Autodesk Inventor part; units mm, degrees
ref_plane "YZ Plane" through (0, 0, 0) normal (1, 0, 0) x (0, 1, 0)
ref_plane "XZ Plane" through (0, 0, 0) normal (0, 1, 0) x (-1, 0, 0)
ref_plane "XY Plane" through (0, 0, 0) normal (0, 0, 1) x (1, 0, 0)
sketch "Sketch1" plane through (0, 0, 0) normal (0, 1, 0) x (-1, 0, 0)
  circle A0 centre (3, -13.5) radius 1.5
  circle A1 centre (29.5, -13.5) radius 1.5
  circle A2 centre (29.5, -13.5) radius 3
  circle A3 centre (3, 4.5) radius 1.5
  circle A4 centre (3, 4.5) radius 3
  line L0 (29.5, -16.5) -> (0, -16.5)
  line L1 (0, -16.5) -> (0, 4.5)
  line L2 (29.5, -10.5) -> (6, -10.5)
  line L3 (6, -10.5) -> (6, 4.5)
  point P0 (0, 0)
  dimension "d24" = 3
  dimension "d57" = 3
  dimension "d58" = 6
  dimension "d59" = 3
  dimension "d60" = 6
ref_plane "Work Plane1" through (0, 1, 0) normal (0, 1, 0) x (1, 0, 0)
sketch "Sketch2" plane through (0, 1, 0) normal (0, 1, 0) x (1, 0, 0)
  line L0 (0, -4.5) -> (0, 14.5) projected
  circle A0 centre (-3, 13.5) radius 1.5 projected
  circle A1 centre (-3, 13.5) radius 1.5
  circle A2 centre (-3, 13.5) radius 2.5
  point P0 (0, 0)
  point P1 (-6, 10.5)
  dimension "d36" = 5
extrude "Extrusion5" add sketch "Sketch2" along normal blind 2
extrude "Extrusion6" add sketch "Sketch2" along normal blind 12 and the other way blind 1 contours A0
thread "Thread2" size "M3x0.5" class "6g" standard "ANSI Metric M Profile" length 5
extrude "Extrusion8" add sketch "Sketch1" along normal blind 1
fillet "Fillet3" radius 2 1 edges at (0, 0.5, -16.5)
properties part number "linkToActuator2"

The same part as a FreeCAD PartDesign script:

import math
import FreeCAD as App
import Part
import Sketcher
from FreeCAD import Vector
Q = App.Units.Quantity


def edges_at(feature, points):
    """Names of the edges that pass closest to the given points."""
    edges = feature.Shape.Edges
    near = lambda p: min(range(len(edges)), key=lambda i: edges[i].distToShape(Part.Vertex(*p))[0])
    return sorted({f"Edge{near(p) + 1}" for p in points})

doc = App.newDocument("Part")
body = doc.addObject("PartDesign::Body", "Body")

sketch1 = body.newObject("Sketcher::SketchObject", "Sketch")
sketch1.AttachmentSupport = (doc.getObject("XZ_Plane"), [""])
sketch1.MapMode = "FlatFace"
sketch1.AttachmentOffset = App.Placement(Vector(0, 0, -1), App.Rotation())
sketch1.addGeometry([
    Part.Circle(Vector(-3, -13.5, 0), Vector(0, 0, 1), 2.5),
    Part.Circle(Vector(-3, -13.5, 0), Vector(0, 0, 1), 1.5),
], False)
sketch1.addConstraint([
    Sketcher.Constraint("Coincident", 1, 3, 0, 3),
    Sketcher.Constraint("Diameter", 0, Q("5 mm")),
    Sketcher.Constraint("Diameter", 1, Q("3 mm")),
    Sketcher.Constraint("DistanceX", 0, 3, -1, 1, Q("3 mm")),
    Sketcher.Constraint("DistanceY", 0, 3, -1, 1, Q("13.5 mm")),
])
pad1 = body.newObject("PartDesign::Pad", "Pad")
pad1.Profile = sketch1
pad1.Length = 2
pad1.Reversed = True

sketch2 = body.newObject("Sketcher::SketchObject", "Sketch001")
sketch2.AttachmentSupport = (doc.getObject("XZ_Plane"), [""])
sketch2.MapMode = "FlatFace"
sketch2.AttachmentOffset = App.Placement(Vector(0, 0, -1), App.Rotation())
sketch2.addGeometry(Part.Circle(Vector(-3, -13.5, 0), Vector(0, 0, 1), 1.5), False)
sketch2.addConstraint([
    Sketcher.Constraint("Diameter", 0, Q("3 mm")),
    Sketcher.Constraint("DistanceX", 0, 3, -1, 1, Q("3 mm")),
    Sketcher.Constraint("DistanceY", 0, 3, -1, 1, Q("13.5 mm")),
])
pad2 = body.newObject("PartDesign::Pad", "Pad001")
pad2.Profile = sketch2
pad2.Type = "TwoLengths"
pad2.Length = 12
pad2.Length2 = 1
pad2.Reversed = True

sketch3 = body.newObject("Sketcher::SketchObject", "Sketch002")
sketch3.AttachmentSupport = (doc.getObject("XZ_Plane"), [""])
sketch3.MapMode = "FlatFace"
sketch3.addGeometry([
    Part.ArcOfCircle(Part.Circle(Vector(-29.5, -13.5, 0), Vector(0, 0, 1), 3), math.radians(90), math.radians(270)),
    Part.LineSegment(Vector(-29.5, -10.5, 0), Vector(-6, -10.5, 0)),
    Part.LineSegment(Vector(-6, -10.5, 0), Vector(-6, 4.5, 0)),
    Part.ArcOfCircle(Part.Circle(Vector(-3, 4.5, 0), Vector(0, 0, 1), 3), math.radians(0), math.radians(180)),
    Part.LineSegment(Vector(0, 4.5, 0), Vector(0, -16.5, 0)),
    Part.LineSegment(Vector(0, -16.5, 0), Vector(-29.5, -16.5, 0)),
    Part.Circle(Vector(-29.5, -13.5, 0), Vector(0, 0, 1), 1.5),
    Part.Circle(Vector(-3, -13.5, 0), Vector(0, 0, 1), 1.5),
    Part.Circle(Vector(-3, 4.5, 0), Vector(0, 0, 1), 1.5),
], False)
sketch3.addConstraint([
    Sketcher.Constraint("Tangent", 0, 1, 1, 1),
    Sketcher.Constraint("Coincident", 1, 2, 2, 1),
    Sketcher.Constraint("Tangent", 2, 2, 3, 2),
    Sketcher.Constraint("Tangent", 3, 1, 4, 1),
    Sketcher.Constraint("Coincident", 4, 2, 5, 1),
    Sketcher.Constraint("Tangent", 5, 2, 0, 2),
    Sketcher.Constraint("Horizontal", 1),
    Sketcher.Constraint("Vertical", 2),
    Sketcher.Constraint("Vertical", 4),
    Sketcher.Constraint("Horizontal", 5),
    Sketcher.Constraint("Coincident", 6, 3, 0, 3),
    Sketcher.Constraint("Coincident", 8, 3, 3, 3),
    Sketcher.Constraint("Equal", 0, 3),
    Sketcher.Constraint("Equal", 6, 7),
    Sketcher.Constraint("Equal", 7, 8),
    Sketcher.Constraint("PointOnObject", 3, 1, -2),
    Sketcher.Constraint("Horizontal", 6, 3, 7, 3),
    Sketcher.Constraint("Vertical", 3, 3, 7, 3),
    Sketcher.Constraint("Diameter", 6, Q("3 mm")),
    Sketcher.Constraint("Radius", 0, Q("3 mm")),
    Sketcher.Constraint("DistanceY", 2, 1, 2, 2, Q("15 mm")),
    Sketcher.Constraint("DistanceX", 1, 1, 1, 2, Q("23.5 mm")),
    Sketcher.Constraint("DistanceY", 0, 3, -1, 1, Q("13.5 mm")),
])
pad3 = body.newObject("PartDesign::Pad", "Pad002")
pad3.Profile = sketch3
pad3.Length = 1
pad3.Reversed = True
doc.recompute()

fillet = body.newObject("PartDesign::Fillet", "Fillet")
fillet.Base = (pad3, edges_at(pad3, [(0, 0.5, -16.5)]))
fillet.Radius = 2

doc.recompute()
